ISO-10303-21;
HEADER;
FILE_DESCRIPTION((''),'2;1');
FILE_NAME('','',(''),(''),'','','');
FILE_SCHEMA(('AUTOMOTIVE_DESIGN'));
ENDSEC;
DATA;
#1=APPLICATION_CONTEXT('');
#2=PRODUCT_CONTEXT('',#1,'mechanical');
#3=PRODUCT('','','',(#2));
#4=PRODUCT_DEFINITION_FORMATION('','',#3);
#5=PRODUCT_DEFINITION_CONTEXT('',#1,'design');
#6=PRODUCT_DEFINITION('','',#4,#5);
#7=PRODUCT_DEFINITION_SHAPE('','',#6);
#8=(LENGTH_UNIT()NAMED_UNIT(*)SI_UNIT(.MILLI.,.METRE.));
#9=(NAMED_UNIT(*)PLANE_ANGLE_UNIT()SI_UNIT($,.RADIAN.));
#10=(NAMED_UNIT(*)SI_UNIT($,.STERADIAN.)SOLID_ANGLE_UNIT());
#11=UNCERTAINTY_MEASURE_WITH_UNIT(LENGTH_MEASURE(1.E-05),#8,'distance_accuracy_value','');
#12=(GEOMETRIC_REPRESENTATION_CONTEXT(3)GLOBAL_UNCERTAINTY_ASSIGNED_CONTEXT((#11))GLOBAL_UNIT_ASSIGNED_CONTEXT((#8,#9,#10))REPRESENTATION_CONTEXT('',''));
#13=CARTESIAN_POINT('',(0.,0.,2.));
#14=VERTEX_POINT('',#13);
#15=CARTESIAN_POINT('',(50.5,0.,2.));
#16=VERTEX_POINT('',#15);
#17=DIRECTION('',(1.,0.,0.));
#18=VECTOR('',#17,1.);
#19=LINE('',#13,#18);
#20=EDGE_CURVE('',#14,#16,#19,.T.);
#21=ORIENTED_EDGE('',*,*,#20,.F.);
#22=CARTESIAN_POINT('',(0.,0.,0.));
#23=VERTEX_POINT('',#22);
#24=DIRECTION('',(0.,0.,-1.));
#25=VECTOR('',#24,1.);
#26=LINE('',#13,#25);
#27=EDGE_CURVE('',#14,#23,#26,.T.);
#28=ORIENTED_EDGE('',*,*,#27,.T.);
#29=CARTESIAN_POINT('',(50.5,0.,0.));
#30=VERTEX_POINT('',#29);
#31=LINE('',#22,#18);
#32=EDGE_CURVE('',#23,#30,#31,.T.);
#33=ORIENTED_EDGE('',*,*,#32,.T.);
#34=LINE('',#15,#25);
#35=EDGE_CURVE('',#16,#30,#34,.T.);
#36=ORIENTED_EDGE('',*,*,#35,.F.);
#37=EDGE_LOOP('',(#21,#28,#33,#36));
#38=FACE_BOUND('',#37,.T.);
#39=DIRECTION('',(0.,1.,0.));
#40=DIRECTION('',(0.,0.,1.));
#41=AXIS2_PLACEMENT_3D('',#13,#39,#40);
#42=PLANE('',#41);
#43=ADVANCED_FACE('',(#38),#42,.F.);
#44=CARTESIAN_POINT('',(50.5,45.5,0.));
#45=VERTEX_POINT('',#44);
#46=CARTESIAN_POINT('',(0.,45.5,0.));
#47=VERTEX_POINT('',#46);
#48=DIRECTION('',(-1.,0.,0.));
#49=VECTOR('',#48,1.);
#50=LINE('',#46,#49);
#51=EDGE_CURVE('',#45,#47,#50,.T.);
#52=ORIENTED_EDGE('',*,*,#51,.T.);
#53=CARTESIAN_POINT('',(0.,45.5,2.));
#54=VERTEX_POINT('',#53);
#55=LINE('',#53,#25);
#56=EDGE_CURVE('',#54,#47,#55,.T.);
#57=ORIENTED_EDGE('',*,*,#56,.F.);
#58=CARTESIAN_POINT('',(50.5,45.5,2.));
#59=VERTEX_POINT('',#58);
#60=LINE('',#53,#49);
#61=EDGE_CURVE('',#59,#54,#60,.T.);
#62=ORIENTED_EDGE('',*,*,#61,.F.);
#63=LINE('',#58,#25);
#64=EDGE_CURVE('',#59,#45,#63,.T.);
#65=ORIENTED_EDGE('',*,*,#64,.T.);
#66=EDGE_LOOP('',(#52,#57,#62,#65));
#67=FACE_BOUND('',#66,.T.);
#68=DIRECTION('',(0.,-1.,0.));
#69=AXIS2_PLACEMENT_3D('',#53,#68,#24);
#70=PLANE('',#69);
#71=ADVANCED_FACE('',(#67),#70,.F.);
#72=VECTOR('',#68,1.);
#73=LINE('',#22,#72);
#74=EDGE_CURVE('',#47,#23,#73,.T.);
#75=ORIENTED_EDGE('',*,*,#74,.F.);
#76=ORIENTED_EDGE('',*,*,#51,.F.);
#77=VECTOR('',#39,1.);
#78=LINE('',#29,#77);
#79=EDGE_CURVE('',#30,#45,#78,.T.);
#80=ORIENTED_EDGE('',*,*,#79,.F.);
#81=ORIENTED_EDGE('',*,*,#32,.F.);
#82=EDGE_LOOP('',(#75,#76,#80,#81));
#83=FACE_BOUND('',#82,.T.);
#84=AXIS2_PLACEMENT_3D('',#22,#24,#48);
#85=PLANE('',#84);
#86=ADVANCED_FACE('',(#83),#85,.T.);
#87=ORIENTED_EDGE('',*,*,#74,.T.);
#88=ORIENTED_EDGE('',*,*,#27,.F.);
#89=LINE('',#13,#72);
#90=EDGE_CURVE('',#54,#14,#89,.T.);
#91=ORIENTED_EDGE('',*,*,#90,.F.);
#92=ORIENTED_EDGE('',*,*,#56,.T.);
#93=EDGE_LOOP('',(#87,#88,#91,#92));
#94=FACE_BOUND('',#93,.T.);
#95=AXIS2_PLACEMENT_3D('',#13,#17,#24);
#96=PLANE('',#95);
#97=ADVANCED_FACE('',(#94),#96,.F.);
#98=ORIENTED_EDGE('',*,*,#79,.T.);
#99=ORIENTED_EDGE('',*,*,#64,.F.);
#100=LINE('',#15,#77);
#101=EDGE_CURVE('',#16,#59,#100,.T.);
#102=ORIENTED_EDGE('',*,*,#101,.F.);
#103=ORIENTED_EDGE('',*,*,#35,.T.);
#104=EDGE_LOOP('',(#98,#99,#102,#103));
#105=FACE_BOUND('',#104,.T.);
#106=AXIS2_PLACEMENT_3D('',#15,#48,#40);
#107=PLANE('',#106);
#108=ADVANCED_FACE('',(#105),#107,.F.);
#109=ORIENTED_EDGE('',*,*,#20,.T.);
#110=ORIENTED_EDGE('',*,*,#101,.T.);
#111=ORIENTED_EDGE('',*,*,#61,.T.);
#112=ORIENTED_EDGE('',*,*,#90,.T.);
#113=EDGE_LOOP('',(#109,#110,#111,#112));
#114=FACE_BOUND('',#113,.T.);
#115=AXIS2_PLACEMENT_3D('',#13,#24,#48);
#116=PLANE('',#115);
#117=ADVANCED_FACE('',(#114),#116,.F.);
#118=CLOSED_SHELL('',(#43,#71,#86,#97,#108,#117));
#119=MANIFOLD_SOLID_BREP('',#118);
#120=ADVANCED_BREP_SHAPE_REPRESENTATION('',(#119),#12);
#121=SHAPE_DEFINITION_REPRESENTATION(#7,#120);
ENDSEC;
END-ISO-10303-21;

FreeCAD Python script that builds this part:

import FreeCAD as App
import Part
import Sketcher

V = App.Vector
Q = App.Units.Quantity


def add_polygon(sketch, points):
    """Adds a closed chain of lines whose ends are joined by coincident constraints."""
    first, n = sketch.GeometryCount, len(points)
    for a, b in zip(points, points[1:] + points[:1]):
        sketch.addGeometry(Part.LineSegment(App.Vector(*a, 0), App.Vector(*b, 0)), False)
    for i in range(n):
        sketch.addConstraint(Sketcher.Constraint("Coincident", first + i, 2, first + (i + 1) % n, 1))

doc = App.newDocument("Part")
body = doc.addObject("PartDesign::Body", "Body")

sketch1 = body.newObject("Sketcher::SketchObject", "Sketch")
sketch1.AttachmentSupport = (doc.getObject("XY_Plane"), [""])
sketch1.MapMode = "FlatFace"
add_polygon(sketch1, [(0, 45.5), (0, 0), (50.5, 0), (50.5, 45.5)])
sketch1.addConstraint([
    Sketcher.Constraint("Vertical", 0),
    Sketcher.Constraint("Horizontal", 1),
    Sketcher.Constraint("Vertical", 2),
    Sketcher.Constraint("Horizontal", 3),
    Sketcher.Constraint("Coincident", 0, 2, -1, 1),
    Sketcher.Constraint("DistanceX", 1, 1, 1, 2, Q("50.5 mm")),
    Sketcher.Constraint("DistanceY", 0, 2, 0, 1, Q("45.5 mm")),
])
pad1 = body.newObject("PartDesign::Pad", "Pad")
pad1.Profile = sketch1
pad1.Length = 2

doc.recompute()
